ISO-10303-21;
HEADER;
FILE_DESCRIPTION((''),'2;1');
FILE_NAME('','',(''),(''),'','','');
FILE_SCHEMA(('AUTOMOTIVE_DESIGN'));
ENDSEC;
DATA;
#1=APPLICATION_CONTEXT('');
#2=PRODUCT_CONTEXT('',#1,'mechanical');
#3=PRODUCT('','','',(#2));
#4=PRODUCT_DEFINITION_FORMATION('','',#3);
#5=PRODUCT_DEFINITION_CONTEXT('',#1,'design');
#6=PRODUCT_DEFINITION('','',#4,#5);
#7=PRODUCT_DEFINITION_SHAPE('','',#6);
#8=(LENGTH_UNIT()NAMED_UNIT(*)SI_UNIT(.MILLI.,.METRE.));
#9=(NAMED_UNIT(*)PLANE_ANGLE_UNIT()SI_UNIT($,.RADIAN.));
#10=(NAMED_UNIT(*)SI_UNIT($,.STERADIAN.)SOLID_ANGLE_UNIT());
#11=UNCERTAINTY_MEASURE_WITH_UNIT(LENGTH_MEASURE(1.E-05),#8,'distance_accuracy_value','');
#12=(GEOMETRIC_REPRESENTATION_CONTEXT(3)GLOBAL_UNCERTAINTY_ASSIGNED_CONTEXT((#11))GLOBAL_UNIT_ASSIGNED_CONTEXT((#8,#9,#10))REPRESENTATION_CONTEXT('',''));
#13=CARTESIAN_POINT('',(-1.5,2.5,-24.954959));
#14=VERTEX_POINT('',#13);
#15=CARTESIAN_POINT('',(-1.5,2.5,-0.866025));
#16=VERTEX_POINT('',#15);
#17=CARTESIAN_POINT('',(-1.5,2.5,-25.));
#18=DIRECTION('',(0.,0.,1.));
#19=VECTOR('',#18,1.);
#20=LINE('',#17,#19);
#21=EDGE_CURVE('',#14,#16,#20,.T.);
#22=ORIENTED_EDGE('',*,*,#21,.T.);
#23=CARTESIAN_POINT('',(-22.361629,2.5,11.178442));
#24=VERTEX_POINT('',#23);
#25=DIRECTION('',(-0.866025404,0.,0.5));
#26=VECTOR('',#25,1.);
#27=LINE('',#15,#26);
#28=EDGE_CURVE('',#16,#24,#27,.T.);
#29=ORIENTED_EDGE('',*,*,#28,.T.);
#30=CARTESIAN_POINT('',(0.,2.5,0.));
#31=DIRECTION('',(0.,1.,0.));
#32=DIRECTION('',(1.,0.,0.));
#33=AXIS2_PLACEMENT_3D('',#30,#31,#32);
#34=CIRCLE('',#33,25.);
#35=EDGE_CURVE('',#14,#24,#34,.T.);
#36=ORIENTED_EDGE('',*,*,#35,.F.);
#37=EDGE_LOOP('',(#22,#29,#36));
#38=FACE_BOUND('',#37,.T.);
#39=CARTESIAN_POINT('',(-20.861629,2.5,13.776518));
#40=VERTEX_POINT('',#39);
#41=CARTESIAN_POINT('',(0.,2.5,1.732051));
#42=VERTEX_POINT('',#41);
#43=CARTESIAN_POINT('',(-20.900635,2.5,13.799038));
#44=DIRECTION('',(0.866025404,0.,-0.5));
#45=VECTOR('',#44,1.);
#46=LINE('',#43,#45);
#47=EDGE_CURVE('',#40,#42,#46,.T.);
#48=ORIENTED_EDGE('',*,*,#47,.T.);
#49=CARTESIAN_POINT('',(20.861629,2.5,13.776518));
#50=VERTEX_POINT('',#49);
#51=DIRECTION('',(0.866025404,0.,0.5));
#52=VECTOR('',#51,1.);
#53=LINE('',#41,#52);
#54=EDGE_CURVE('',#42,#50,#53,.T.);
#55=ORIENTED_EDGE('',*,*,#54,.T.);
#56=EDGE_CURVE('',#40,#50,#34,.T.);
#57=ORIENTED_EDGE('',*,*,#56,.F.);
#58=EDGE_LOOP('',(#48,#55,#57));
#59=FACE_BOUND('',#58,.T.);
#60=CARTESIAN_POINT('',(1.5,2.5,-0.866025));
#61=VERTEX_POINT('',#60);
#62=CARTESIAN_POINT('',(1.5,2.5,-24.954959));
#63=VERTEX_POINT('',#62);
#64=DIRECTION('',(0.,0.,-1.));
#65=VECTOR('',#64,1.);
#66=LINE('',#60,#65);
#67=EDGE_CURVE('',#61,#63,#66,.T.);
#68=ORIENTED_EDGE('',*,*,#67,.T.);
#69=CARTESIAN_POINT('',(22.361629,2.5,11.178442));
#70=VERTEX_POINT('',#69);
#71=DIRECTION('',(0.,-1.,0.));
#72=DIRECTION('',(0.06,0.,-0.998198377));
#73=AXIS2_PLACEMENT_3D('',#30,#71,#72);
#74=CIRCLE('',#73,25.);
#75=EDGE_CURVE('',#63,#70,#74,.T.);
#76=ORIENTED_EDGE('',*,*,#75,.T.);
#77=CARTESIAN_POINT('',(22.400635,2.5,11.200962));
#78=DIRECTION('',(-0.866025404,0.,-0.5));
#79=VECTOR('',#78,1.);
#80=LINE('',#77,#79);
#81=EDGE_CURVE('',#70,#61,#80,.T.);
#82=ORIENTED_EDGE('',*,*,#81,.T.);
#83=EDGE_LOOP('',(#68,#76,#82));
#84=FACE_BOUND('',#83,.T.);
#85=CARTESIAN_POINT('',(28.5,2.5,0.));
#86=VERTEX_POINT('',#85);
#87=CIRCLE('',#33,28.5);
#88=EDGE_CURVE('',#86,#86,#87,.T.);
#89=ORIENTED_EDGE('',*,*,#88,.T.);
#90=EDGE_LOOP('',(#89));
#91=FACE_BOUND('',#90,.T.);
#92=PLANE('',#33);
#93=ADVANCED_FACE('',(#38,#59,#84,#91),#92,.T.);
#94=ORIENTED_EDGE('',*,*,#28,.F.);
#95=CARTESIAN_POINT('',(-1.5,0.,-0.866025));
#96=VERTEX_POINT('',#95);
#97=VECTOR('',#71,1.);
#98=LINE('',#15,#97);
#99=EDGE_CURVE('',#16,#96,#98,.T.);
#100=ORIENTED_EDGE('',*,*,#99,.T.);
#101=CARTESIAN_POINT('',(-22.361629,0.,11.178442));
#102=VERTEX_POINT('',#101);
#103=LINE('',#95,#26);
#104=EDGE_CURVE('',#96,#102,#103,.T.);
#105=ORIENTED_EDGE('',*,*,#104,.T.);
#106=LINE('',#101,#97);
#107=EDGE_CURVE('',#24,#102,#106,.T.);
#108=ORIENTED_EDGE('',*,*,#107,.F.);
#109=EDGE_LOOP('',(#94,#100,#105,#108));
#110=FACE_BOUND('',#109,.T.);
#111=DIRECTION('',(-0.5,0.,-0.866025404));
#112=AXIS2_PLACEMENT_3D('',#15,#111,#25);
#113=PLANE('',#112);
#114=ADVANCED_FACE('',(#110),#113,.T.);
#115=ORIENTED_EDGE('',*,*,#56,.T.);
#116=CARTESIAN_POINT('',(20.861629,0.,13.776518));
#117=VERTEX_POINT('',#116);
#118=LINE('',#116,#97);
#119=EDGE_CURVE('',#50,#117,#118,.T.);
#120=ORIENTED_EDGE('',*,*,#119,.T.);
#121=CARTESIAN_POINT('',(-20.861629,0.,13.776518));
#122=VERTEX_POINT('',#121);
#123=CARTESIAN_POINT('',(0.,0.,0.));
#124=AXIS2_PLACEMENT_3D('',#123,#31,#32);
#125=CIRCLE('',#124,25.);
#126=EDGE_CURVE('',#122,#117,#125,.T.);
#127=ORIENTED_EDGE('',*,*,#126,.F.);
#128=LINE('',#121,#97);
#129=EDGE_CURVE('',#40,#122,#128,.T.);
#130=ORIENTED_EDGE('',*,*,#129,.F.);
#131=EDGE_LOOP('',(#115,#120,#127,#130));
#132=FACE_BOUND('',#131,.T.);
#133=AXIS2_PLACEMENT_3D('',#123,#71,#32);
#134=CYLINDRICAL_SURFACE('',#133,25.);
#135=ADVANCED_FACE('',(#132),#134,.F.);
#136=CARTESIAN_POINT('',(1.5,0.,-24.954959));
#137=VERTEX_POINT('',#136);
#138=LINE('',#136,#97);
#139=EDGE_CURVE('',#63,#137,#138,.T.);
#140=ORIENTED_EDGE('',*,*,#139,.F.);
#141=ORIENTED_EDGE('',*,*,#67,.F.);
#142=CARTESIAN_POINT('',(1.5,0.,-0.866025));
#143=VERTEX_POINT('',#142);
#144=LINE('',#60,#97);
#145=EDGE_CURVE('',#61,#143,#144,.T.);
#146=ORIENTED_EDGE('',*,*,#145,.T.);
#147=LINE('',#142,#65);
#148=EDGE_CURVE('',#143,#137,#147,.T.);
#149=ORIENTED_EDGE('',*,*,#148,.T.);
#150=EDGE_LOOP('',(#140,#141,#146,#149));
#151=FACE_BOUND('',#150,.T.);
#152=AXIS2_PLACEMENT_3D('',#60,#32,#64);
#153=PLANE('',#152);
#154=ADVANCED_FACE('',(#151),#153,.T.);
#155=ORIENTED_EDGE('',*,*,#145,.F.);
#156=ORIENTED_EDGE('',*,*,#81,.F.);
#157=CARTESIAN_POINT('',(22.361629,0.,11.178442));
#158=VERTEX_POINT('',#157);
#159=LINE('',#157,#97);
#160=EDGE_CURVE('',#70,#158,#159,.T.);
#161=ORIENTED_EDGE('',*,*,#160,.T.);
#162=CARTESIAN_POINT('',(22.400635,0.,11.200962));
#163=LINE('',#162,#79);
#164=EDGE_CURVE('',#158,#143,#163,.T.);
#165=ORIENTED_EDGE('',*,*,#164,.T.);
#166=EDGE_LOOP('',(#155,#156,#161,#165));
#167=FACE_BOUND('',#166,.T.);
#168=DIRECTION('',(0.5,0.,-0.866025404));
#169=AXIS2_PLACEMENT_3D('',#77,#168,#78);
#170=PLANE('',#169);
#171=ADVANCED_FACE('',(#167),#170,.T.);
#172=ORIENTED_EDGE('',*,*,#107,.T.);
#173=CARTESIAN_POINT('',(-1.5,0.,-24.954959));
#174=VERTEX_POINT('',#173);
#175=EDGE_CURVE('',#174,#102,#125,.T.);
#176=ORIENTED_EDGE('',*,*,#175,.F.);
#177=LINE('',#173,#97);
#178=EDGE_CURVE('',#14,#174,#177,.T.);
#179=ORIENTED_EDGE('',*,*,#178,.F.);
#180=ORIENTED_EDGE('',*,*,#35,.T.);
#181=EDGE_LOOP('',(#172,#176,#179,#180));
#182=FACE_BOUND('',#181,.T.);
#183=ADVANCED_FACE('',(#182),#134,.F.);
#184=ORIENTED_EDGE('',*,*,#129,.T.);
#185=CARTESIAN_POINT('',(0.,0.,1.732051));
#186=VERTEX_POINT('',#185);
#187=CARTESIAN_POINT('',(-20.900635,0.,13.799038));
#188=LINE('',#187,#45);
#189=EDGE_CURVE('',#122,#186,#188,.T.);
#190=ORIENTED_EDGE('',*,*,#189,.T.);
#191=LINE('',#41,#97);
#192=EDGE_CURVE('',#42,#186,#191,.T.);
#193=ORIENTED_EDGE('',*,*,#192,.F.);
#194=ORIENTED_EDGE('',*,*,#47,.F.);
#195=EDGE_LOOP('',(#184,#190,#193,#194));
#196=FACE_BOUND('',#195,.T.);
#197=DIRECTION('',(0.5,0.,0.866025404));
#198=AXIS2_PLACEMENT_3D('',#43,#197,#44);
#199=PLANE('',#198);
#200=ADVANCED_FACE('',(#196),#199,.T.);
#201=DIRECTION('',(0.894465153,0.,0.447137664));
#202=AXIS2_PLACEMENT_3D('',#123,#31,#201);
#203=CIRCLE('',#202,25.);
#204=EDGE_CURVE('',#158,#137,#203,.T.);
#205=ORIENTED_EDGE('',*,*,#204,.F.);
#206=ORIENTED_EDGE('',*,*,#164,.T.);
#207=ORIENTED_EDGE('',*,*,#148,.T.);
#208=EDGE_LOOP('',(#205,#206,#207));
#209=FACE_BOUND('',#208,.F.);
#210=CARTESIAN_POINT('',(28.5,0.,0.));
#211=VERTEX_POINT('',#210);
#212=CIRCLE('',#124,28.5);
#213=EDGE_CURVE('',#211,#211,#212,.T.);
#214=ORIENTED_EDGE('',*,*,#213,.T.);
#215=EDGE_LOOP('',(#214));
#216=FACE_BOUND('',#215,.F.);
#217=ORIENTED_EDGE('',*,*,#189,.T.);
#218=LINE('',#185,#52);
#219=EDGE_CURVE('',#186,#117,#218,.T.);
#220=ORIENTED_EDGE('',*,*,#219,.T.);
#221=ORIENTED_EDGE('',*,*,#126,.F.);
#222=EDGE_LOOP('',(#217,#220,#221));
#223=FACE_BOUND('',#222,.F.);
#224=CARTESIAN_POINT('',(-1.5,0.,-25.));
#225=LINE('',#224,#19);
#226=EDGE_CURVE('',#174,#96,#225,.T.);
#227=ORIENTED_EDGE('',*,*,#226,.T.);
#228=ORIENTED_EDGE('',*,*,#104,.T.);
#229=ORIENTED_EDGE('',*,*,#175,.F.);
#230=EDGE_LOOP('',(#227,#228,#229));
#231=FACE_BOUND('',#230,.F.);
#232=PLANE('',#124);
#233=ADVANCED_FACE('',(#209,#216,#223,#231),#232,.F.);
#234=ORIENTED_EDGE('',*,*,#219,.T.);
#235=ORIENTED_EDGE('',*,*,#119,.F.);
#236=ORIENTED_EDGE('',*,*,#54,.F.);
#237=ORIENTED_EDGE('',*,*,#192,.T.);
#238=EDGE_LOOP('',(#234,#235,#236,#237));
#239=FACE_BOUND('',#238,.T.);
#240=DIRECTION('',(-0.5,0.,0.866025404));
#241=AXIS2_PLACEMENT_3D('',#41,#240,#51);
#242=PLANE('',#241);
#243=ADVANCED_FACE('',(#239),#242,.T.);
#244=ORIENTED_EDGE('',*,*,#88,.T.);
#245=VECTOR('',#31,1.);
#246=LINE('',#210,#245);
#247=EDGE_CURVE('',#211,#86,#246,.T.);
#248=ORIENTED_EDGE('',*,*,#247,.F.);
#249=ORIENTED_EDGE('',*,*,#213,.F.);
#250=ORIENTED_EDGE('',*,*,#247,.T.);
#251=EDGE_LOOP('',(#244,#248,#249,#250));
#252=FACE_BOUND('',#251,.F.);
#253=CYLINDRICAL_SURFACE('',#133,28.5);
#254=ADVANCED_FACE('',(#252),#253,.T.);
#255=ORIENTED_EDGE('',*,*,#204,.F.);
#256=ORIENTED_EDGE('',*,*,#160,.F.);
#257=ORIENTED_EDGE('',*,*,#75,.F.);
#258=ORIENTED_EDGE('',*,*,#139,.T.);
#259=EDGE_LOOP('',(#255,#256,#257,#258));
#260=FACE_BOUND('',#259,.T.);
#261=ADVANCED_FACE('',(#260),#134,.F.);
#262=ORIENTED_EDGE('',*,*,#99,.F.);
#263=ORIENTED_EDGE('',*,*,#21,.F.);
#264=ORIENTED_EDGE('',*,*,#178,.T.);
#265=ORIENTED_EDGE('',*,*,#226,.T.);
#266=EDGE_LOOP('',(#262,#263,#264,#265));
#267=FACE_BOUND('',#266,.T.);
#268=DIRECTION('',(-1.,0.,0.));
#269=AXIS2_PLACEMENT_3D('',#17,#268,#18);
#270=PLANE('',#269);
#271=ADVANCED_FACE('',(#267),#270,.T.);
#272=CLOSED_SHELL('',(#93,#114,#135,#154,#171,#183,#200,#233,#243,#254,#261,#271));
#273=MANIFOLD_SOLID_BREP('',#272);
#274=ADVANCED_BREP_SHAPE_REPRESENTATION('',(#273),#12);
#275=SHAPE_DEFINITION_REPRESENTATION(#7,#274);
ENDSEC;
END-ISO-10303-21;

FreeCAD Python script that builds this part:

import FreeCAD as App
import Part
import Sketcher
from FreeCAD import Vector
Q = App.Units.Quantity


def add_polygon(sketch, points):
    """Adds a closed chain of lines whose ends are joined by coincident constraints."""
    first, n = sketch.GeometryCount, len(points)
    for a, b in zip(points, points[1:] + points[:1]):
        sketch.addGeometry(Part.LineSegment(App.Vector(*a, 0), App.Vector(*b, 0)), False)
    for i in range(n):
        sketch.addConstraint(Sketcher.Constraint("Coincident", first + i, 2, first + (i + 1) % n, 1))

doc = App.newDocument("Part")
params = doc.addObject("Spreadsheet::Sheet", "Params")
for row, (alias, value) in enumerate([
    ("sketch1_diameter", "57 mm"),
    ("sketch1_diameter2", "50 mm"),
    ("pad1_length", "2.5 mm"),
    ("sketch2_width", "3 mm"),
    ("pad2_length", "2.5 mm"),
], start=1):
    params.set(f"A{row}", alias)
    params.set(f"B{row}", "=" + value)
    params.setAlias(f"B{row}", alias)

body = doc.addObject("PartDesign::Body", "Body")

sketch1 = doc.addObject("Sketcher::SketchObject", "Sketch")
body.addObject(sketch1)
sketch1.AttachmentSupport = (doc.XZ_Plane, [""])
sketch1.MapMode = "FlatFace"
sketch1.addGeometry([
    Part.Circle(Vector(0, 0, 0), Vector(0, 0, 1), 28.5),
    Part.Circle(Vector(0, 0, 0), Vector(0, 0, 1), 25),
], False)
sketch1.addConstraint([
    Sketcher.Constraint("Coincident", 0, 3, -1, 1),
    Sketcher.Constraint("Coincident", 1, 3, -1, 1),
    Sketcher.Constraint("Diameter", 0, Q("57 mm")),
    Sketcher.Constraint("Diameter", 1, Q("50 mm")),
])
sketch1.setExpression("Constraints[2]", "Params.sketch1_diameter")
sketch1.setExpression("Constraints[3]", "Params.sketch1_diameter2")
pad1 = doc.addObject("PartDesign::Pad", "Pad")
body.addObject(pad1)
pad1.Profile = sketch1
pad1.setExpression("Length", "Params.pad1_length")
pad1.Reversed = True

sketch2 = doc.addObject("Sketcher::SketchObject", "Sketch001")
body.addObject(sketch2)
sketch2.AttachmentSupport = (doc.XZ_Plane, [""])
sketch2.MapMode = "FlatFace"
sketch2.AttachmentOffset = App.Placement(Vector(0, 0, -2.5), App.Rotation())
add_polygon(sketch2, [(-1.5, -0.866025), (-22.400635, 11.200962), (-20.900635, 13.799038), (0, 1.732051), (20.900635, 13.799038), (22.400635, 11.200962), (1.5, -0.866025), (1.5, -25), (-1.5, -25)])
sketch2.addConstraint([
    Sketcher.Constraint("Vertical", 6),
    Sketcher.Constraint("Horizontal", 7),
    Sketcher.Constraint("Vertical", 8),
    Sketcher.Constraint("Symmetric", 1, 2, 3, 2, -2),
    Sketcher.Constraint("Symmetric", 0, 2, 4, 2, -2),
    Sketcher.Constraint("Symmetric", 5, 2, 8, 2, -2),
    Sketcher.Constraint("PointOnObject", 2, 2, -2),
    Sketcher.Constraint("Perpendicular", 0, 1),
    Sketcher.Constraint("Perpendicular", 1, 2),
    Sketcher.Constraint("Equal", 0, 2),
    Sketcher.Constraint("DistanceX", 7, 2, 7, 1, Q("3 mm")),
    Sketcher.Constraint("Angle", 0, Q("150 deg")),
    Sketcher.Constraint("DistanceY", 6, 2, -1, 1, Q("25 mm")),
    Sketcher.Constraint("DistanceY", 6, 2, 6, 1, Q("24.133975 mm")),
    Sketcher.Constraint("DistanceY", -1, 1, 0, 2, Q("11.200962 mm")),
])
sketch2.setExpression("Constraints[19]", "Params.sketch2_width")
pad2 = doc.addObject("PartDesign::Pad", "Pad001")
body.addObject(pad2)
pad2.Profile = sketch2
pad2.setExpression("Length", "Params.pad2_length")

doc.recompute()
